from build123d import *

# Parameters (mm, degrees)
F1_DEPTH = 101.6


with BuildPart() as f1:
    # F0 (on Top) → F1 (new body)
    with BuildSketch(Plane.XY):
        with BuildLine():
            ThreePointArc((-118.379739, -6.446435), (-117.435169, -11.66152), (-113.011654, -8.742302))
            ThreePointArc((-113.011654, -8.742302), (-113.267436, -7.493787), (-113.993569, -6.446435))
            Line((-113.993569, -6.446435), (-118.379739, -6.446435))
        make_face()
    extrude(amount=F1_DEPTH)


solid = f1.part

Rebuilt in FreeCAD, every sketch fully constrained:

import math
import FreeCAD as App
import Part
import Sketcher

V = App.Vector
Q = App.Units.Quantity

doc = App.newDocument("Part")
body = doc.addObject("PartDesign::Body", "Body")

# Sketch on XY plane
sketch1 = body.newObject("Sketcher::SketchObject", "Sketch")
sketch1.AttachmentSupport = (doc.getObject("XY_Plane"), [""])
sketch1.MapMode = "FlatFace"
sketch1.addGeometry([
    Part.ArcOfCircle(Part.Circle(V(-116.186654, -8.742302, 0), V(0, 0, 1), 3.175), math.radians(133.688351), math.radians(359.999994)),
    Part.ArcOfCircle(Part.Circle(V(-116.186659, -8.742304, 0), V(0, 0, 1), 3.175005), math.radians(0.000029), math.radians(46.311609)),
    Part.LineSegment(V(-113.993569, -6.446435, 0), V(-118.379739, -6.446435, 0)),
], False)
sketch1.addConstraint([
    Sketcher.Constraint("Tangent", 0, 2, 1, 1),
    Sketcher.Constraint("Coincident", 1, 2, 2, 1),
    Sketcher.Constraint("Coincident", 2, 2, 0, 1),
    Sketcher.Constraint("Horizontal", 2),
    Sketcher.Constraint("Horizontal", 1, 3, 0, 2),
    Sketcher.Constraint("Radius", 0, Q("0.125 in")),
    Sketcher.Constraint("Radius", 1, Q("0.1250002 in")),
    Sketcher.Constraint("DistanceX", 2, 2, 2, 1, Q("4.38617 mm")),
    Sketcher.Constraint("DistanceY", 0, 3, -1, 1, Q("8.742302 mm")),
    Sketcher.Constraint("DistanceX", 1, 3, -1, 1, Q("116.186659 mm")),
])
pad1 = body.newObject("PartDesign::Pad", "Pad")
pad1.Profile = sketch1
pad1.Length = Q("4 in")

doc.recompute()
